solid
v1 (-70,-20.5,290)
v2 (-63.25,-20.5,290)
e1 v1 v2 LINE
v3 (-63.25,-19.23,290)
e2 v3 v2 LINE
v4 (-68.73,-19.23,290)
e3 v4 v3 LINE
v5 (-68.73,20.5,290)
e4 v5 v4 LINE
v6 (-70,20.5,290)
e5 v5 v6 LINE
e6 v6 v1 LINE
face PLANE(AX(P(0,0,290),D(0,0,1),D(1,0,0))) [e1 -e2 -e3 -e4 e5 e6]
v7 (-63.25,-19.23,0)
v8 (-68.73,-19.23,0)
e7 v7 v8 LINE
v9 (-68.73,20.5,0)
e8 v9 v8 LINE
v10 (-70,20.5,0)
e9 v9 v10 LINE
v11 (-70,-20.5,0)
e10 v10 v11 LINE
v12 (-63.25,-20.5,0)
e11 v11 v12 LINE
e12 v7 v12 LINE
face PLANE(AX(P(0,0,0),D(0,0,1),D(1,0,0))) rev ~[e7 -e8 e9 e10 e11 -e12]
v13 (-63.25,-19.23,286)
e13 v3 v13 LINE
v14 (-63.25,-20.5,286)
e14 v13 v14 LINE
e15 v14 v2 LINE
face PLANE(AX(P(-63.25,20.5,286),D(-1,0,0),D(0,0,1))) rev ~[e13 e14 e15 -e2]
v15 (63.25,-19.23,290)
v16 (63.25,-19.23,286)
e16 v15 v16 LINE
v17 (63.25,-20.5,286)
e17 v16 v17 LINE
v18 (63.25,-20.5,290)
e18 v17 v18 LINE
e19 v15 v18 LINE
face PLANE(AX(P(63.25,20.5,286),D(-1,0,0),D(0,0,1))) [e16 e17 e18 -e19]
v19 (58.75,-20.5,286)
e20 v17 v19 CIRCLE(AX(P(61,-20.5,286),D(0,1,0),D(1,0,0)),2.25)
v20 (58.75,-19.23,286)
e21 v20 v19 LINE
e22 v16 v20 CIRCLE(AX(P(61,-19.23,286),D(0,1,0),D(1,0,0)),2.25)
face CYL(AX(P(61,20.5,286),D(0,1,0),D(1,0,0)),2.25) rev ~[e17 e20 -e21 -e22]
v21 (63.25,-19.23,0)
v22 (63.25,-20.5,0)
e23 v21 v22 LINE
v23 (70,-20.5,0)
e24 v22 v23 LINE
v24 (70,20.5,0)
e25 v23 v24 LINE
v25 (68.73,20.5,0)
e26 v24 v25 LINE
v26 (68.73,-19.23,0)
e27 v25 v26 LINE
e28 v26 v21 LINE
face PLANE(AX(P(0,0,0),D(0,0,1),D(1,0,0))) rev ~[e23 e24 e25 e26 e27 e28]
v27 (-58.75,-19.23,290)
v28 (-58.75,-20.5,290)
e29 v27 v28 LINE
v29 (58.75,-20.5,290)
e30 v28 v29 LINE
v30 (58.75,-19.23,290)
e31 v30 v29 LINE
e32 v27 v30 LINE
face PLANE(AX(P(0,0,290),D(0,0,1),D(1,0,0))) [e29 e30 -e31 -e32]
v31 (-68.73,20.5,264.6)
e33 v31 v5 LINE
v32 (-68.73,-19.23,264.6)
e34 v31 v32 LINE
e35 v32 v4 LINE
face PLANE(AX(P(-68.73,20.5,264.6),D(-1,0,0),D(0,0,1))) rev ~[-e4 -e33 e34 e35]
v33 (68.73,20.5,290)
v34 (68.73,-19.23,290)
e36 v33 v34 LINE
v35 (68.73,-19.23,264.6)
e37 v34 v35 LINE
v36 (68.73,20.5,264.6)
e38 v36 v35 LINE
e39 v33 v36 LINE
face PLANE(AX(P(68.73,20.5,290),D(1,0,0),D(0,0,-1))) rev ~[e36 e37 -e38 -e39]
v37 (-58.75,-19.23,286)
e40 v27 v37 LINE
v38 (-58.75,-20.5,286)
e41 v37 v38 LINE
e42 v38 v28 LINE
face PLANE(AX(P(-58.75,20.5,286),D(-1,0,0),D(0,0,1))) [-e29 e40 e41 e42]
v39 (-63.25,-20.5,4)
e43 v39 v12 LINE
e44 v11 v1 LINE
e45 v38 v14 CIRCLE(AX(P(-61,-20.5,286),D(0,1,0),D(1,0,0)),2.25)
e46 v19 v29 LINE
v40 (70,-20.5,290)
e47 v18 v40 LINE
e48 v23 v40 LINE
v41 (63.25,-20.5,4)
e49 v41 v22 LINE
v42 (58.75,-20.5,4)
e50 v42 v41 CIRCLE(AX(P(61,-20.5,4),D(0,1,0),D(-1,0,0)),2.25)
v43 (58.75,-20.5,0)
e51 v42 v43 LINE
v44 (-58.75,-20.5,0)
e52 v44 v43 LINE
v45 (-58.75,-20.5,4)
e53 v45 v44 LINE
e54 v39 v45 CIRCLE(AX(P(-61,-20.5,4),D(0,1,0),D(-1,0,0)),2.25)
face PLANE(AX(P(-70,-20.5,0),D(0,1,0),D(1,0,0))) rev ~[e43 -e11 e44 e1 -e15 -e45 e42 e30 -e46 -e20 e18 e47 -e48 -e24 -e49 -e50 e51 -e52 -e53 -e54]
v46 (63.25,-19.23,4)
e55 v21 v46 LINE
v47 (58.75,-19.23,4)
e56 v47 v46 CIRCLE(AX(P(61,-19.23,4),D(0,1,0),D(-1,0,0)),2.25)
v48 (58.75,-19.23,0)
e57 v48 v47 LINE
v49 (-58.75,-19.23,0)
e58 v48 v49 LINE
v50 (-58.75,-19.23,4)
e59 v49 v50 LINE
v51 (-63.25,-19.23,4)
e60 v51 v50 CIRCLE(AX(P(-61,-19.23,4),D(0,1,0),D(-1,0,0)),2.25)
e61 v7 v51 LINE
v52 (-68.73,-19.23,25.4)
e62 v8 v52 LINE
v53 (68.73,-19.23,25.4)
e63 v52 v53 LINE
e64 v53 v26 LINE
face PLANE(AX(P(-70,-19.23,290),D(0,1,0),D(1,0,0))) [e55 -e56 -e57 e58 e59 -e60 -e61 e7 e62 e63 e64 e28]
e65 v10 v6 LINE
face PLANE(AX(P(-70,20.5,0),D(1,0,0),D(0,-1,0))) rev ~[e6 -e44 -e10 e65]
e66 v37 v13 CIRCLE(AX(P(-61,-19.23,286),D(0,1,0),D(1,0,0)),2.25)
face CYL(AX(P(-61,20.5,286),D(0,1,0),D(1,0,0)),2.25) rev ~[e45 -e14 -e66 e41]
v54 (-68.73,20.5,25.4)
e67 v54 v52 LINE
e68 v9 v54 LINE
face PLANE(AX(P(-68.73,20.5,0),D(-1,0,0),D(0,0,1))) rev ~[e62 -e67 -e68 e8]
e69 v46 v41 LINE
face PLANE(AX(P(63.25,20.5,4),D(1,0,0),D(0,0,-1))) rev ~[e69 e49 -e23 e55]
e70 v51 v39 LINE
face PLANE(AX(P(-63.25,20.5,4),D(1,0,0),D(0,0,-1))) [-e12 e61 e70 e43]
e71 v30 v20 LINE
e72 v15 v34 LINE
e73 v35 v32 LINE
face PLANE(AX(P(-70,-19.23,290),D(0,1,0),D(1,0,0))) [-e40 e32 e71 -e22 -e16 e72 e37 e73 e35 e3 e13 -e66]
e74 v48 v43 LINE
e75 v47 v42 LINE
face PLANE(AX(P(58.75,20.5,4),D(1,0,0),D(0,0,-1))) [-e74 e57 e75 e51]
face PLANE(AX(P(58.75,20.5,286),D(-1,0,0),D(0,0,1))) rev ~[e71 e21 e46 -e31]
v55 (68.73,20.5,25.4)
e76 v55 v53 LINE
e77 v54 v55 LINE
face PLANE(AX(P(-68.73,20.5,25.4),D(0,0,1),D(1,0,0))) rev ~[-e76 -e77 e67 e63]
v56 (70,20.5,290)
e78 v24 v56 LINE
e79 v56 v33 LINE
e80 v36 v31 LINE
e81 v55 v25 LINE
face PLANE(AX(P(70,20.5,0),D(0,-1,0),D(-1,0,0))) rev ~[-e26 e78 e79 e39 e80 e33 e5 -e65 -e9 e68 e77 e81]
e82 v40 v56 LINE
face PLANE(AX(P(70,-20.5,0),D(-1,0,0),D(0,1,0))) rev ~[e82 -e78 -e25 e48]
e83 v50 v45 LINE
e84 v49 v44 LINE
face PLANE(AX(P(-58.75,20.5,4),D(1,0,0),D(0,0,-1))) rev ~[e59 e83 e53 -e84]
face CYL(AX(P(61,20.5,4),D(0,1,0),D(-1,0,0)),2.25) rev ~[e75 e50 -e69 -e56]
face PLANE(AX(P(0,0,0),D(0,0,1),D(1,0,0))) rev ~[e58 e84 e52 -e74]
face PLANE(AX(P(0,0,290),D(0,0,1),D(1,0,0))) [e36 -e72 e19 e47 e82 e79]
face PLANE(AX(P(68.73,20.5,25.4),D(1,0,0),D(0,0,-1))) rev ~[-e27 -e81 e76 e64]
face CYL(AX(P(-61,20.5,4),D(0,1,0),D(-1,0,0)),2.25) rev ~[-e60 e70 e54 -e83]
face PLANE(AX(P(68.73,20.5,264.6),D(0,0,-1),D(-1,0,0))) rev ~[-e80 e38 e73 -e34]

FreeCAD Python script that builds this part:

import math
import FreeCAD as App
import Part
import Sketcher

doc = App.newDocument("Part")
body = doc.addObject("PartDesign::Body", "Body")

sketch1 = doc.addObject("Sketcher::SketchObject", "Sketch")
body.addObject(sketch1)
sketch1.AttachmentSupport = (doc.XY_Plane, [""])
sketch1.MapMode = "FlatFace"
sketch1.addGeometry([
    Part.LineSegment(App.Vector(-70, 20.5, 0), App.Vector(-70, -20.5, 0)),
    Part.LineSegment(App.Vector(-70, -20.5, 0), App.Vector(70, -20.5, 0)),
    Part.LineSegment(App.Vector(70, -20.5, 0), App.Vector(70, 20.5, 0)),
    Part.LineSegment(App.Vector(70, 20.5, 0), App.Vector(-70, 20.5, 0)),
], False)
sketch1.addConstraint([
    Sketcher.Constraint("Coincident", 0, 2, 1, 1),
    Sketcher.Constraint("Coincident", 1, 2, 2, 1),
    Sketcher.Constraint("Coincident", 2, 2, 3, 1),
    Sketcher.Constraint("Coincident", 3, 2, 0, 1),
    Sketcher.Constraint("Vertical", 0),
    Sketcher.Constraint("Horizontal", 1),
    Sketcher.Constraint("Vertical", 2),
    Sketcher.Constraint("Horizontal", 3),
    Sketcher.Constraint("Symmetric", 0, 2, 2, 2, -1, 1),
    Sketcher.Constraint("DistanceX", 1, 1, 1, 2, 140.0),
    Sketcher.Constraint("DistanceY", 0, 2, 0, 1, 41.0),
])
pad1 = doc.addObject("PartDesign::Pad", "Pad")
body.addObject(pad1)
pad1.Profile = sketch1
pad1.Length = 290

sketch2 = doc.addObject("Sketcher::SketchObject", "Sketch001")
body.addObject(sketch2)
sketch2.AttachmentSupport = (doc.XZ_Plane, [""])
sketch2.MapMode = "FlatFace"
sketch2.AttachmentOffset = App.Placement(App.Vector(0, 0, -20.5), App.Rotation())
sketch2.addGeometry([
    Part.LineSegment(App.Vector(-63.25, 290, 0), App.Vector(-58.75, 290, 0)),
    Part.LineSegment(App.Vector(-58.75, 290, 0), App.Vector(-58.75, 286, 0)),
    Part.ArcOfCircle(Part.Circle(App.Vector(-61, 286, 0), App.Vector(0, 0, 1), 2.25), math.radians(180), math.radians(360)),
    Part.LineSegment(App.Vector(-63.25, 286, 0), App.Vector(-63.25, 290, 0)),
    Part.LineSegment(App.Vector(58.75, 290, 0), App.Vector(63.25, 290, 0)),
    Part.LineSegment(App.Vector(63.25, 290, 0), App.Vector(63.25, 286, 0)),
    Part.ArcOfCircle(Part.Circle(App.Vector(61, 286, 0), App.Vector(0, 0, 1), 2.25), math.radians(180), math.radians(360)),
    Part.LineSegment(App.Vector(58.75, 286, 0), App.Vector(58.75, 290, 0)),
    Part.LineSegment(App.Vector(63.25, 4, 0), App.Vector(63.25, 0, 0)),
    Part.LineSegment(App.Vector(63.25, 0, 0), App.Vector(58.75, 0, 0)),
    Part.LineSegment(App.Vector(58.75, 0, 0), App.Vector(58.75, 4, 0)),
    Part.ArcOfCircle(Part.Circle(App.Vector(61, 4, 0), App.Vector(0, 0, 1), 2.25), math.radians(0), math.radians(180)),
    Part.LineSegment(App.Vector(-58.75, 4, 0), App.Vector(-58.75, 0, 0)),
    Part.LineSegment(App.Vector(-58.75, 0, 0), App.Vector(-63.25, 0, 0)),
    Part.LineSegment(App.Vector(-63.25, 0, 0), App.Vector(-63.25, 4, 0)),
    Part.ArcOfCircle(Part.Circle(App.Vector(-61, 4, 0), App.Vector(0, 0, 1), 2.25), math.radians(0), math.radians(180)),
], False)
sketch2.addConstraint([
    Sketcher.Constraint("Coincident", 0, 2, 1, 1),
    Sketcher.Constraint("Tangent", 1, 2, 2, 2),
    Sketcher.Constraint("Tangent", 2, 1, 3, 1),
    Sketcher.Constraint("Coincident", 3, 2, 0, 1),
    Sketcher.Constraint("Coincident", 4, 2, 5, 1),
    Sketcher.Constraint("Tangent", 5, 2, 6, 2),
    Sketcher.Constraint("Tangent", 6, 1, 7, 1),
    Sketcher.Constraint("Coincident", 7, 2, 4, 1),
    Sketcher.Constraint("Coincident", 8, 2, 9, 1),
    Sketcher.Constraint("Coincident", 9, 2, 10, 1),
    Sketcher.Constraint("Tangent", 10, 2, 11, 2),
    Sketcher.Constraint("Tangent", 11, 1, 8, 1),
    Sketcher.Constraint("Coincident", 12, 2, 13, 1),
    Sketcher.Constraint("Coincident", 13, 2, 14, 1),
    Sketcher.Constraint("Tangent", 14, 2, 15, 2),
    Sketcher.Constraint("Tangent", 15, 1, 12, 1),
    Sketcher.Constraint("Horizontal", 0),
    Sketcher.Constraint("Vertical", 1),
    Sketcher.Constraint("Vertical", 3),
    Sketcher.Constraint("Horizontal", 4),
    Sketcher.Constraint("Vertical", 5),
    Sketcher.Constraint("Vertical", 7),
    Sketcher.Constraint("Vertical", 8),
    Sketcher.Constraint("Horizontal", 9),
    Sketcher.Constraint("Vertical", 10),
    Sketcher.Constraint("Vertical", 12),
    Sketcher.Constraint("Horizontal", 13),
    Sketcher.Constraint("Vertical", 14),
    Sketcher.Constraint("Equal", 2, 6),
    Sketcher.Constraint("Equal", 6, 11),
    Sketcher.Constraint("Equal", 11, 15),
    Sketcher.Constraint("Symmetric", 9, 2, 12, 2, -1, 1),
    Sketcher.Constraint("Symmetric", 2, 3, 6, 3, -2),
    Sketcher.Constraint("PointOnObject", 8, 2, -1),
    Sketcher.Constraint("Horizontal", 11, 3, 15, 3),
    Sketcher.Constraint("Horizontal", 3, 2, 4, 2),
    Sketcher.Constraint("Vertical", 6, 3, 11, 3),
    Sketcher.Constraint("Equal", 7, 8),
    Sketcher.Constraint("Radius", 2, 2.25),
    Sketcher.Constraint("DistanceX", 2, 3, 6, 3, 122.0),
    Sketcher.Constraint("DistanceY", 11, 3, 6, 3, 282.0),
    Sketcher.Constraint("DistanceY", 1, 2, 1, 1, 4.0),
])
pocket1 = doc.addObject("PartDesign::Pocket", "Pocket")
body.addObject(pocket1)
pocket1.Profile = sketch2
pocket1.Length = 41
pocket1.Reversed = True

sketch3 = doc.addObject("Sketcher::SketchObject", "Sketch002")
body.addObject(sketch3)
sketch3.AttachmentSupport = (doc.XZ_Plane, [""])
sketch3.MapMode = "FlatFace"
sketch3.AttachmentOffset = App.Placement(App.Vector(0, 0, -20.5), App.Rotation())
sketch3.addGeometry([
    Part.LineSegment(App.Vector(-68.73, 290, 0), App.Vector(68.73, 290, 0)),
    Part.LineSegment(App.Vector(68.73, 290, 0), App.Vector(68.73, 264.6, 0)),
    Part.LineSegment(App.Vector(68.73, 264.6, 0), App.Vector(-68.73, 264.6, 0)),
    Part.LineSegment(App.Vector(-68.73, 264.6, 0), App.Vector(-68.73, 290, 0)),
    Part.LineSegment(App.Vector(-68.73, 0, 0), App.Vector(-68.73, 25.4, 0)),
    Part.LineSegment(App.Vector(-68.73, 25.4, 0), App.Vector(68.73, 25.4, 0)),
    Part.LineSegment(App.Vector(68.73, 25.4, 0), App.Vector(68.73, 0, 0)),
    Part.LineSegment(App.Vector(68.73, 0, 0), App.Vector(-68.73, 0, 0)),
], False)
sketch3.addConstraint([
    Sketcher.Constraint("Coincident", 0, 2, 1, 1),
    Sketcher.Constraint("Coincident", 1, 2, 2, 1),
    Sketcher.Constraint("Coincident", 2, 2, 3, 1),
    Sketcher.Constraint("Coincident", 3, 2, 0, 1),
    Sketcher.Constraint("Coincident", 4, 2, 5, 1),
    Sketcher.Constraint("Coincident", 5, 2, 6, 1),
    Sketcher.Constraint("Coincident", 6, 2, 7, 1),
    Sketcher.Constraint("Coincident", 7, 2, 4, 1),
    Sketcher.Constraint("Horizontal", 0),
    Sketcher.Constraint("Vertical", 1),
    Sketcher.Constraint("Horizontal", 2),
    Sketcher.Constraint("Vertical", 3),
    Sketcher.Constraint("Vertical", 4),
    Sketcher.Constraint("Horizontal", 5),
    Sketcher.Constraint("Vertical", 6),
    Sketcher.Constraint("Horizontal", 7),
    Sketcher.Constraint("Symmetric", 6, 2, 7, 2, -1, 1),
    Sketcher.Constraint("Vertical", 3, 2, 4, 2),
    Sketcher.Constraint("Vertical", 1, 2, 5, 2),
    Sketcher.Constraint("Equal", 3, 4),
    Sketcher.Constraint("DistanceY", 1, 2, 1, 1, 25.4),
    Sketcher.Constraint("DistanceY", -1, 1, 0, 2, 290.0),
    Sketcher.Constraint("DistanceX", 0, 1, 0, 2, 137.46),
])
pocket2 = doc.addObject("PartDesign::Pocket", "Pocket001")
body.addObject(pocket2)
pocket2.Profile = sketch3
pocket2.Length = 39.73
pocket2.Reversed = True

doc.recompute()
